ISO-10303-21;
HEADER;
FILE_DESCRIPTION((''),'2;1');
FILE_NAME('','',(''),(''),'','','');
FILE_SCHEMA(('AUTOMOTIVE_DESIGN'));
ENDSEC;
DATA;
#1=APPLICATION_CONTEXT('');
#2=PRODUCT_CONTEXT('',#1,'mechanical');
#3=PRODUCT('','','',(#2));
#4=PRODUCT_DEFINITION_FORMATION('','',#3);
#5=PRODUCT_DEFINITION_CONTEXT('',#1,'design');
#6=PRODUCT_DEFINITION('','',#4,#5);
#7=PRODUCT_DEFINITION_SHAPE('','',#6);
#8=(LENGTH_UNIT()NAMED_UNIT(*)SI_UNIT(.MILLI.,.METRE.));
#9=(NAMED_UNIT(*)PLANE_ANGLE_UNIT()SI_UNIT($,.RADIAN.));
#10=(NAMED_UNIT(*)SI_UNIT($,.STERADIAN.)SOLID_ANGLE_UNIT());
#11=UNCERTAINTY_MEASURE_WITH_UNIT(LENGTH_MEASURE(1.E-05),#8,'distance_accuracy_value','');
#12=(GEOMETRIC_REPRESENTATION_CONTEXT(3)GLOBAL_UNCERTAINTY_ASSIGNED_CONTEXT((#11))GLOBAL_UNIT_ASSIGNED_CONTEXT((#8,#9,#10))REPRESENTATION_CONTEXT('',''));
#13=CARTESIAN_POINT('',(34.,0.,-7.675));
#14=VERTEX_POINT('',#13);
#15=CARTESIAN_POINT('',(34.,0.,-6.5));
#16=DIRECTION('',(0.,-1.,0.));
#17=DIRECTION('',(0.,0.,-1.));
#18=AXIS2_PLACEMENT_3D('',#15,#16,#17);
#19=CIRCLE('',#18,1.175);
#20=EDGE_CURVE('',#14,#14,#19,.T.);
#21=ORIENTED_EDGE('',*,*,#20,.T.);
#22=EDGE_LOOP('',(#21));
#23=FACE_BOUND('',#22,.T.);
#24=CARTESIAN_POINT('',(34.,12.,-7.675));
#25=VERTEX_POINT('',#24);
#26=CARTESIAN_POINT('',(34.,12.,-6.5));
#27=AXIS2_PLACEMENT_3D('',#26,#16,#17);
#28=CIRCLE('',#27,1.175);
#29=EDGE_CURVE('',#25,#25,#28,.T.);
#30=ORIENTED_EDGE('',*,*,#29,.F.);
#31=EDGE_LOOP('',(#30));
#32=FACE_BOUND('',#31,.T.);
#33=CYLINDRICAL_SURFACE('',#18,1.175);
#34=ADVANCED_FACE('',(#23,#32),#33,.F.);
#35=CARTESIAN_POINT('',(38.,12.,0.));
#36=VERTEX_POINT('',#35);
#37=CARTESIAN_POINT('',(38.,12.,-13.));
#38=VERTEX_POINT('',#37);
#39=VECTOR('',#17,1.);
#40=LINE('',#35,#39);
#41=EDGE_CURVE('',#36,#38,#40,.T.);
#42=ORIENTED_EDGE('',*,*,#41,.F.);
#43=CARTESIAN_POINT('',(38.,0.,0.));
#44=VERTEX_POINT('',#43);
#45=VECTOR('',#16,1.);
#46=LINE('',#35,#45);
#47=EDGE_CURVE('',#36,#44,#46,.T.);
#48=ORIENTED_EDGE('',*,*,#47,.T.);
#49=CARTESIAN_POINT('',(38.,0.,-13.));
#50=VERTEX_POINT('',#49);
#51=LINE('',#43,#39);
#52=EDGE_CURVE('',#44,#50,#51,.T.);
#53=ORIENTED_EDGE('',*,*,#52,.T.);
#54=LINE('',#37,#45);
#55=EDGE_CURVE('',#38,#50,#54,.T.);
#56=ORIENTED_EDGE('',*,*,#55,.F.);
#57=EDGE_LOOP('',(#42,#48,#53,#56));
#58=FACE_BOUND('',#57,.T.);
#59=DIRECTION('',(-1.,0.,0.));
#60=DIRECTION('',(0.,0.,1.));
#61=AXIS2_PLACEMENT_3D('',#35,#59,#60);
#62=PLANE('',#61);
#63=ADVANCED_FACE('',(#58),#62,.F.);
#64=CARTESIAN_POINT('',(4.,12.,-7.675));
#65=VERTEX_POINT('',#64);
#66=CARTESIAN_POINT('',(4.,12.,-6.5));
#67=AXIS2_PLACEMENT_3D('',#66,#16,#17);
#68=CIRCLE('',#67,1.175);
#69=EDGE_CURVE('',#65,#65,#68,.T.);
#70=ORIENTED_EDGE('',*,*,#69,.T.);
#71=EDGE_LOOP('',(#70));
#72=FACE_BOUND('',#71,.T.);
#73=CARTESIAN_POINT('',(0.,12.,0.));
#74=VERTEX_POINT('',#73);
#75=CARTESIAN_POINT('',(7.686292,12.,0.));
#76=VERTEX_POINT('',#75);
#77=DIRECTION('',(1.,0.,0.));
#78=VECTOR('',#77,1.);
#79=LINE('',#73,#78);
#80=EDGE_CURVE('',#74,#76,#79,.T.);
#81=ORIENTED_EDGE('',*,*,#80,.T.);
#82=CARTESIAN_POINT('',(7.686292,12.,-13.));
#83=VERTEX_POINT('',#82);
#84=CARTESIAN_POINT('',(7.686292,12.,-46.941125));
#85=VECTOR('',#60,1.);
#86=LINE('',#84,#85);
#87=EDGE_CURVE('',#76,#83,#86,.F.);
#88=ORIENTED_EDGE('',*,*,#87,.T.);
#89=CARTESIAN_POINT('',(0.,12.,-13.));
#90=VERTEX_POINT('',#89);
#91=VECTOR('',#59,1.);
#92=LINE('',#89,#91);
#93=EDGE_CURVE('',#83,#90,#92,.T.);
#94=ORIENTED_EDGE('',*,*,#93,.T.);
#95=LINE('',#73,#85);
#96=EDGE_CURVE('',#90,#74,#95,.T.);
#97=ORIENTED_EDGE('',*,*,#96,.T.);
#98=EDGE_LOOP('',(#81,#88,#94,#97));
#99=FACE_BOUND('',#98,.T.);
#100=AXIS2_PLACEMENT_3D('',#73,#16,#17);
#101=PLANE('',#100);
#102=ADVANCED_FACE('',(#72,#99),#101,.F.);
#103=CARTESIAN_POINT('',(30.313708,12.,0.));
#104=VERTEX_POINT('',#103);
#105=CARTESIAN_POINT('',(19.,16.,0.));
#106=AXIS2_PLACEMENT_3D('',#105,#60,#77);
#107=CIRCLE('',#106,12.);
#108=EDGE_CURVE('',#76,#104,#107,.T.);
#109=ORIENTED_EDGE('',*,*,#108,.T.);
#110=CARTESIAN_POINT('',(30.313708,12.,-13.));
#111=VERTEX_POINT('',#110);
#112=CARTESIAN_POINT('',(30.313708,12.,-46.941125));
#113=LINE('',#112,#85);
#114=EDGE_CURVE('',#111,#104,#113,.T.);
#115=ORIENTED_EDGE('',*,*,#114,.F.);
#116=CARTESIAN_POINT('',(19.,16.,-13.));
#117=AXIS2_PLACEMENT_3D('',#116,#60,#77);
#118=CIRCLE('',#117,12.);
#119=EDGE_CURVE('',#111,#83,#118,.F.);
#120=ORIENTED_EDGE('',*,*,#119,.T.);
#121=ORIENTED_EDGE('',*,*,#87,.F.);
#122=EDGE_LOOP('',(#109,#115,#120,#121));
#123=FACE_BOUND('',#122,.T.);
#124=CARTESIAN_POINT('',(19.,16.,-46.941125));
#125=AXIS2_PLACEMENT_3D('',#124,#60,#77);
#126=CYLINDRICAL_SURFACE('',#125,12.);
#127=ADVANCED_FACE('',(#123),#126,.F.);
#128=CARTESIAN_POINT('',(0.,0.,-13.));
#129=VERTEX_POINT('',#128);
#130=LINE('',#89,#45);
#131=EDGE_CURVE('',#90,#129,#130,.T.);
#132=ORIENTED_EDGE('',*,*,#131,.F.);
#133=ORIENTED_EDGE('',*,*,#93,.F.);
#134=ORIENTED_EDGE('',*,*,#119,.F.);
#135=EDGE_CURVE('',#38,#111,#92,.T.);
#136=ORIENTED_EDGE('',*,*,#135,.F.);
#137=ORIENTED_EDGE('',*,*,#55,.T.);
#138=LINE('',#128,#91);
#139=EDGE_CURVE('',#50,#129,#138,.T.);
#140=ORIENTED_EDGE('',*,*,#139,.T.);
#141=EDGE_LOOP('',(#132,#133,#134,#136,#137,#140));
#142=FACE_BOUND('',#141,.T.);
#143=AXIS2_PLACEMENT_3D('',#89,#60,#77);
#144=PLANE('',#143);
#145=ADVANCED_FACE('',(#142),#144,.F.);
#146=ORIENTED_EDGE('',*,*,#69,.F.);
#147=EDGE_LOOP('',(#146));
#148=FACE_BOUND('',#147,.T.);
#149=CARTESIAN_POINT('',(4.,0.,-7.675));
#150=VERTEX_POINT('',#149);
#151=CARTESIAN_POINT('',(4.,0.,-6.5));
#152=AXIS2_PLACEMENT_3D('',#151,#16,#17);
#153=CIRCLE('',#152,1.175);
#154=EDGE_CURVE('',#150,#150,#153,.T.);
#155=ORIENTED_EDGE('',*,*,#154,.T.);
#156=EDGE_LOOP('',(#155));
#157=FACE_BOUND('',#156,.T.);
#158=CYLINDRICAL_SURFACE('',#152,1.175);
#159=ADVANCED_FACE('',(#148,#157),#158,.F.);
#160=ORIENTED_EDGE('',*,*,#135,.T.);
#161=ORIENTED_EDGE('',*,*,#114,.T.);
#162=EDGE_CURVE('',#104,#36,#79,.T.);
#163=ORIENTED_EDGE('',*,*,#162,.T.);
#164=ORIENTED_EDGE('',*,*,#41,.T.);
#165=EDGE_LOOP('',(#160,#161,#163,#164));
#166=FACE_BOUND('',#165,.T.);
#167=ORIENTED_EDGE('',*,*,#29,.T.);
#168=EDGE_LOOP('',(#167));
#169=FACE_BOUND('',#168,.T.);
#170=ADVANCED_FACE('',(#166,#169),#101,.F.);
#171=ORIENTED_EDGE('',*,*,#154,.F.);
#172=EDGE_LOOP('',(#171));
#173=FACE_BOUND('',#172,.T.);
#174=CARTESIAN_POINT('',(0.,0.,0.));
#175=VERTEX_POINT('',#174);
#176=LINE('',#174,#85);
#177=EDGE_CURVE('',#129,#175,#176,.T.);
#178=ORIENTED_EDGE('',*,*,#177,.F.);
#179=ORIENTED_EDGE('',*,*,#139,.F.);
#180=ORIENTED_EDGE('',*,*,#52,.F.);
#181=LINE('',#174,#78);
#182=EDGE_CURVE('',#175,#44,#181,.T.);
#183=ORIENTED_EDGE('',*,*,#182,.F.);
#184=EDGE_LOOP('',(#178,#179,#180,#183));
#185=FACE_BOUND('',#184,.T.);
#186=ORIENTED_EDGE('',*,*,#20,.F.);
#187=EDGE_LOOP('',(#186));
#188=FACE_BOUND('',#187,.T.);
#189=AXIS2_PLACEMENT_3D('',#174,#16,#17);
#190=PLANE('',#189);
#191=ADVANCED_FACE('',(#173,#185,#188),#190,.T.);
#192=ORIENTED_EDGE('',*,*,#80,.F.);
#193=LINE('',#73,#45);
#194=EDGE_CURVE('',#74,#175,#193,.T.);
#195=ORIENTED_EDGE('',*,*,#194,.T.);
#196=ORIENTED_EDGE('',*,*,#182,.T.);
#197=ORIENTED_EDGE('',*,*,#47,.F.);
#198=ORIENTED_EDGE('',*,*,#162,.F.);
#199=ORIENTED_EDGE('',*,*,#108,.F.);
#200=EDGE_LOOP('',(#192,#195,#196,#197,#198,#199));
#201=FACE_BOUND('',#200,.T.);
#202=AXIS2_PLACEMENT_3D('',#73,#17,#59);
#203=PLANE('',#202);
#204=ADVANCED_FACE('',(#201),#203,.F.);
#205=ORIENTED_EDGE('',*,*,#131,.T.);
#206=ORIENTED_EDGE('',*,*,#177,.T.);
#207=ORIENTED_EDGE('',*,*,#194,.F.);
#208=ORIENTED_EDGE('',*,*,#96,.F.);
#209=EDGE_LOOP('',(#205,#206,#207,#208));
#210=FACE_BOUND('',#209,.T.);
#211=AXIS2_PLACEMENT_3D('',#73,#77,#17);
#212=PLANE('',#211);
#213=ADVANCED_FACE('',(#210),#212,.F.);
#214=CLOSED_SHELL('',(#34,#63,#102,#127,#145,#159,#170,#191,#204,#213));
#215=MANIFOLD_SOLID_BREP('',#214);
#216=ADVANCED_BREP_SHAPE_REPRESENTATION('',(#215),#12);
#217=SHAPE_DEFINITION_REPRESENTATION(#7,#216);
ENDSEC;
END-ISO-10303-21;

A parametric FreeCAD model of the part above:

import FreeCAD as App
import Part
import Sketcher
from FreeCAD import Vector

doc = App.newDocument("Part")
body = doc.addObject("PartDesign::Body", "Body")

sketch1 = body.newObject("Sketcher::SketchObject", "Sketch")
sketch1.AttachmentSupport = (doc.getObject("XZ_Plane"), [""])
sketch1.MapMode = "FlatFace"
sketch1.addGeometry(Part.LineSegment(Vector(0, -13, 0), Vector(0, 0, 0)), False)
sketch1.addGeometry(Part.LineSegment(Vector(0, 0, 0), Vector(38, 0, 0)), False)
sketch1.addGeometry(Part.LineSegment(Vector(38, 0, 0), Vector(38, -13, 0)), False)
sketch1.addGeometry(Part.LineSegment(Vector(38, -13, 0), Vector(0, -13, 0)), False)
sketch1.addConstraint(Sketcher.Constraint("Coincident", 0, 2, 1, 1))
sketch1.addConstraint(Sketcher.Constraint("Coincident", 1, 2, 2, 1))
sketch1.addConstraint(Sketcher.Constraint("Coincident", 2, 2, 3, 1))
sketch1.addConstraint(Sketcher.Constraint("Coincident", 3, 2, 0, 1))
sketch1.addConstraint(Sketcher.Constraint("Vertical", 0))
sketch1.addConstraint(Sketcher.Constraint("Horizontal", 1))
sketch1.addConstraint(Sketcher.Constraint("Vertical", 2))
sketch1.addConstraint(Sketcher.Constraint("Horizontal", 3))
sketch1.addConstraint(Sketcher.Constraint("Coincident", 0, 2, -1, 1))
sketch1.addConstraint(Sketcher.Constraint("DistanceX", 1, 1, 1, 2, 38.0))
sketch1.addConstraint(Sketcher.Constraint("DistanceY", 0, 1, 0, 2, 13.0))
pad1 = body.newObject("PartDesign::Pad", "Pad")
pad1.Profile = sketch1
pad1.Length = 12
pad1.Reversed = True

sketch2 = body.newObject("Sketcher::SketchObject", "Sketch001")
sketch2.AttachmentSupport = (doc.getObject("XY_Plane"), [""])
sketch2.MapMode = "FlatFace"
sketch2.addGeometry(Part.Circle(Vector(19, 16, 0), Vector(0, 0, 1), 12), False)
sketch2.addConstraint(Sketcher.Constraint("Diameter", 0, 24.0))
sketch2.addConstraint(Sketcher.Constraint("DistanceX", -1, 1, 0, 3, 19.0))
sketch2.addConstraint(Sketcher.Constraint("DistanceY", -1, 1, 0, 3, 16.0))
pocket1 = body.newObject("PartDesign::Pocket", "Pocket")
pocket1.Profile = sketch2
pocket1.Length = 13

sketch3 = body.newObject("Sketcher::SketchObject", "Sketch002")
sketch3.AttachmentSupport = (doc.getObject("XZ_Plane"), [""])
sketch3.MapMode = "FlatFace"
sketch3.addGeometry(Part.Circle(Vector(34, -6.5, 0), Vector(0, 0, 1), 1.2), False)
sketch3.addGeometry(Part.Circle(Vector(4, -6.5, 0), Vector(0, 0, 1), 1.2), False)
sketch3.addConstraint(Sketcher.Constraint("Equal", 0, 1))
sketch3.addConstraint(Sketcher.Constraint("Horizontal", 0, 3, 1, 3))
sketch3.addConstraint(Sketcher.Constraint("Diameter", 0, 2.35))
sketch3.addConstraint(Sketcher.Constraint("DistanceX", -1, 1, 0, 3, 34.0))
sketch3.addConstraint(Sketcher.Constraint("DistanceX", -1, 1, 1, 3, 4.0))
sketch3.addConstraint(Sketcher.Constraint("DistanceY", 0, 3, -1, 1, 6.5))
doc.recompute()
hole = body.newObject("PartDesign::Hole", "Hole")
hole.Profile = sketch3
hole.ThreadType = "None"
hole.Diameter = 2.35
hole.DepthType = "ThroughAll"

doc.recompute()
